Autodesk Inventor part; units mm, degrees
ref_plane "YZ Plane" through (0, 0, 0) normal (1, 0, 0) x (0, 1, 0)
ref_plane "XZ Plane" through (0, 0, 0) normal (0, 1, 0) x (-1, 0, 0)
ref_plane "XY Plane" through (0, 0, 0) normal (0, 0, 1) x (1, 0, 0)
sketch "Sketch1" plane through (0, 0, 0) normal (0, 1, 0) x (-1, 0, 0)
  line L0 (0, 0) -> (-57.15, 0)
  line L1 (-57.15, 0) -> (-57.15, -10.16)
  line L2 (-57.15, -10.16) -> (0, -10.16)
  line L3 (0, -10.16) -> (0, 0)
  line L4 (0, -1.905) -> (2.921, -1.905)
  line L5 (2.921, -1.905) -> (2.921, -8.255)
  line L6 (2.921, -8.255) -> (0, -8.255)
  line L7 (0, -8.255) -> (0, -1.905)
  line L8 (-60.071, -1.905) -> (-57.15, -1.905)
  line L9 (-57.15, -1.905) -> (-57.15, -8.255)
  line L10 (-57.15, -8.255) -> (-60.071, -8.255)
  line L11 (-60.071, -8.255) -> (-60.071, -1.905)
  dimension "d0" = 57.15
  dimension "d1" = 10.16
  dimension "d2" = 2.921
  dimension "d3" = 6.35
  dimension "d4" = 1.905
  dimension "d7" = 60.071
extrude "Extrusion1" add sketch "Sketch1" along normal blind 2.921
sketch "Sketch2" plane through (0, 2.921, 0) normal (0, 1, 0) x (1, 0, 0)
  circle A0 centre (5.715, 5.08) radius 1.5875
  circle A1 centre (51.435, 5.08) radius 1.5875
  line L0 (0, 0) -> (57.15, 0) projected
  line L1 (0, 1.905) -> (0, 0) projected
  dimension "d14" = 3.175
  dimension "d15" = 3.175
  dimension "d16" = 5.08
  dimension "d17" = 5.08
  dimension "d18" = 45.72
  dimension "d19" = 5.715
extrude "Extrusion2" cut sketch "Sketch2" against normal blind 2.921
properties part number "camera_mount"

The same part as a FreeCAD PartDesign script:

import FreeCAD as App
import Part
import Sketcher
from FreeCAD import Vector
Q = App.Units.Quantity


def add_polygon(sketch, points):
    """Adds a closed chain of lines whose ends are joined by coincident constraints."""
    first, n = sketch.GeometryCount, len(points)
    for a, b in zip(points, points[1:] + points[:1]):
        sketch.addGeometry(Part.LineSegment(App.Vector(*a, 0), App.Vector(*b, 0)), False)
    for i in range(n):
        sketch.addConstraint(Sketcher.Constraint("Coincident", first + i, 2, first + (i + 1) % n, 1))

doc = App.newDocument("Part")
body = doc.addObject("PartDesign::Body", "Body")

# Sketch on XZ plane
sketch1 = body.newObject("Sketcher::SketchObject", "Sketch")
sketch1.AttachmentSupport = (doc.getObject("XZ_Plane"), [""])
sketch1.MapMode = "FlatFace"
add_polygon(sketch1, [(0, -1.9), (0, 0), (57.1, 0), (57.1, -1.9), (60.1, -1.9), (60.1, -8.3), (57.1, -8.3), (57.1, -10.2), (0, -10.2), (0, -8.3), (-2.9, -8.3), (-2.9, -1.9)])  # lines 0-11
sketch1.addConstraint(Sketcher.Constraint("Vertical", 0))
sketch1.addConstraint(Sketcher.Constraint("Horizontal", 1))
sketch1.addConstraint(Sketcher.Constraint("Vertical", 2))
sketch1.addConstraint(Sketcher.Constraint("Horizontal", 3))
sketch1.addConstraint(Sketcher.Constraint("Vertical", 4))
sketch1.addConstraint(Sketcher.Constraint("Horizontal", 5))
sketch1.addConstraint(Sketcher.Constraint("Vertical", 6))
sketch1.addConstraint(Sketcher.Constraint("Horizontal", 7))
sketch1.addConstraint(Sketcher.Constraint("Vertical", 8))
sketch1.addConstraint(Sketcher.Constraint("Horizontal", 9))
sketch1.addConstraint(Sketcher.Constraint("Vertical", 10))
sketch1.addConstraint(Sketcher.Constraint("Horizontal", 11))
sketch1.addConstraint(Sketcher.Constraint("Coincident", 0, 2, -1, 1))
sketch1.addConstraint(Sketcher.Constraint("PointOnObject", 7, 2, -2))
sketch1.addConstraint(Sketcher.Constraint("Horizontal", 5, 2, 8, 2))
sketch1.addConstraint(Sketcher.Constraint("Horizontal", 3, 2, 10, 2))
sketch1.addConstraint(Sketcher.Constraint("Vertical", 2, 2, 5, 2))
sketch1.addConstraint(Sketcher.Constraint("Equal", 5, 9))
sketch1.addConstraint(Sketcher.Constraint("Equal", 2, 6))
sketch1.addConstraint(Sketcher.Constraint("DistanceX", 1, 1, 1, 2, Q("2.25 in")))
sketch1.addConstraint(Sketcher.Constraint("DistanceY", 4, 2, 4, 1, Q("0.25 in")))
sketch1.addConstraint(Sketcher.Constraint("DistanceY", 6, 2, -1, 1, Q("0.4 in")))
sketch1.addConstraint(Sketcher.Constraint("DistanceX", 3, 1, 3, 2, Q("0.115 in")))
pad1 = body.newObject("PartDesign::Pad", "Pad")
pad1.Profile = sketch1
pad1.Length = Q("0.115 in")
pad1.Reversed = True

# Sketch on XZ plane
sketch2 = body.newObject("Sketcher::SketchObject", "Sketch001")
sketch2.AttachmentSupport = (doc.getObject("XZ_Plane"), [""])
sketch2.MapMode = "FlatFace"
sketch2.AttachmentOffset = App.Placement(Vector(0, 0, -0.115 * 25.4), App.Rotation())
sketch2.addGeometry(Part.Circle(Vector(5.7, -5.1, 0), Vector(0, 0, 1), 1.6), False)
sketch2.addGeometry(Part.Circle(Vector(51.4, -5.1, 0), Vector(0, 0, 1), 1.6), False)
sketch2.addConstraint(Sketcher.Constraint("Equal", 0, 1))
sketch2.addConstraint(Sketcher.Constraint("Horizontal", 0, 3, 1, 3))
sketch2.addConstraint(Sketcher.Constraint("Diameter", 0, Q("0.125 in")))
sketch2.addConstraint(Sketcher.Constraint("DistanceY", 0, 3, -1, 1, Q("0.2 in")))
sketch2.addConstraint(Sketcher.Constraint("DistanceX", 0, 3, 1, 3, Q("1.8 in")))
sketch2.addConstraint(Sketcher.Constraint("DistanceX", -1, 1, 0, 3, Q("0.225 in")))
pocket1 = body.newObject("PartDesign::Pocket", "Pocket")
pocket1.Profile = sketch2
pocket1.Length = Q("0.115 in")
pocket1.Reversed = True

doc.recompute()
